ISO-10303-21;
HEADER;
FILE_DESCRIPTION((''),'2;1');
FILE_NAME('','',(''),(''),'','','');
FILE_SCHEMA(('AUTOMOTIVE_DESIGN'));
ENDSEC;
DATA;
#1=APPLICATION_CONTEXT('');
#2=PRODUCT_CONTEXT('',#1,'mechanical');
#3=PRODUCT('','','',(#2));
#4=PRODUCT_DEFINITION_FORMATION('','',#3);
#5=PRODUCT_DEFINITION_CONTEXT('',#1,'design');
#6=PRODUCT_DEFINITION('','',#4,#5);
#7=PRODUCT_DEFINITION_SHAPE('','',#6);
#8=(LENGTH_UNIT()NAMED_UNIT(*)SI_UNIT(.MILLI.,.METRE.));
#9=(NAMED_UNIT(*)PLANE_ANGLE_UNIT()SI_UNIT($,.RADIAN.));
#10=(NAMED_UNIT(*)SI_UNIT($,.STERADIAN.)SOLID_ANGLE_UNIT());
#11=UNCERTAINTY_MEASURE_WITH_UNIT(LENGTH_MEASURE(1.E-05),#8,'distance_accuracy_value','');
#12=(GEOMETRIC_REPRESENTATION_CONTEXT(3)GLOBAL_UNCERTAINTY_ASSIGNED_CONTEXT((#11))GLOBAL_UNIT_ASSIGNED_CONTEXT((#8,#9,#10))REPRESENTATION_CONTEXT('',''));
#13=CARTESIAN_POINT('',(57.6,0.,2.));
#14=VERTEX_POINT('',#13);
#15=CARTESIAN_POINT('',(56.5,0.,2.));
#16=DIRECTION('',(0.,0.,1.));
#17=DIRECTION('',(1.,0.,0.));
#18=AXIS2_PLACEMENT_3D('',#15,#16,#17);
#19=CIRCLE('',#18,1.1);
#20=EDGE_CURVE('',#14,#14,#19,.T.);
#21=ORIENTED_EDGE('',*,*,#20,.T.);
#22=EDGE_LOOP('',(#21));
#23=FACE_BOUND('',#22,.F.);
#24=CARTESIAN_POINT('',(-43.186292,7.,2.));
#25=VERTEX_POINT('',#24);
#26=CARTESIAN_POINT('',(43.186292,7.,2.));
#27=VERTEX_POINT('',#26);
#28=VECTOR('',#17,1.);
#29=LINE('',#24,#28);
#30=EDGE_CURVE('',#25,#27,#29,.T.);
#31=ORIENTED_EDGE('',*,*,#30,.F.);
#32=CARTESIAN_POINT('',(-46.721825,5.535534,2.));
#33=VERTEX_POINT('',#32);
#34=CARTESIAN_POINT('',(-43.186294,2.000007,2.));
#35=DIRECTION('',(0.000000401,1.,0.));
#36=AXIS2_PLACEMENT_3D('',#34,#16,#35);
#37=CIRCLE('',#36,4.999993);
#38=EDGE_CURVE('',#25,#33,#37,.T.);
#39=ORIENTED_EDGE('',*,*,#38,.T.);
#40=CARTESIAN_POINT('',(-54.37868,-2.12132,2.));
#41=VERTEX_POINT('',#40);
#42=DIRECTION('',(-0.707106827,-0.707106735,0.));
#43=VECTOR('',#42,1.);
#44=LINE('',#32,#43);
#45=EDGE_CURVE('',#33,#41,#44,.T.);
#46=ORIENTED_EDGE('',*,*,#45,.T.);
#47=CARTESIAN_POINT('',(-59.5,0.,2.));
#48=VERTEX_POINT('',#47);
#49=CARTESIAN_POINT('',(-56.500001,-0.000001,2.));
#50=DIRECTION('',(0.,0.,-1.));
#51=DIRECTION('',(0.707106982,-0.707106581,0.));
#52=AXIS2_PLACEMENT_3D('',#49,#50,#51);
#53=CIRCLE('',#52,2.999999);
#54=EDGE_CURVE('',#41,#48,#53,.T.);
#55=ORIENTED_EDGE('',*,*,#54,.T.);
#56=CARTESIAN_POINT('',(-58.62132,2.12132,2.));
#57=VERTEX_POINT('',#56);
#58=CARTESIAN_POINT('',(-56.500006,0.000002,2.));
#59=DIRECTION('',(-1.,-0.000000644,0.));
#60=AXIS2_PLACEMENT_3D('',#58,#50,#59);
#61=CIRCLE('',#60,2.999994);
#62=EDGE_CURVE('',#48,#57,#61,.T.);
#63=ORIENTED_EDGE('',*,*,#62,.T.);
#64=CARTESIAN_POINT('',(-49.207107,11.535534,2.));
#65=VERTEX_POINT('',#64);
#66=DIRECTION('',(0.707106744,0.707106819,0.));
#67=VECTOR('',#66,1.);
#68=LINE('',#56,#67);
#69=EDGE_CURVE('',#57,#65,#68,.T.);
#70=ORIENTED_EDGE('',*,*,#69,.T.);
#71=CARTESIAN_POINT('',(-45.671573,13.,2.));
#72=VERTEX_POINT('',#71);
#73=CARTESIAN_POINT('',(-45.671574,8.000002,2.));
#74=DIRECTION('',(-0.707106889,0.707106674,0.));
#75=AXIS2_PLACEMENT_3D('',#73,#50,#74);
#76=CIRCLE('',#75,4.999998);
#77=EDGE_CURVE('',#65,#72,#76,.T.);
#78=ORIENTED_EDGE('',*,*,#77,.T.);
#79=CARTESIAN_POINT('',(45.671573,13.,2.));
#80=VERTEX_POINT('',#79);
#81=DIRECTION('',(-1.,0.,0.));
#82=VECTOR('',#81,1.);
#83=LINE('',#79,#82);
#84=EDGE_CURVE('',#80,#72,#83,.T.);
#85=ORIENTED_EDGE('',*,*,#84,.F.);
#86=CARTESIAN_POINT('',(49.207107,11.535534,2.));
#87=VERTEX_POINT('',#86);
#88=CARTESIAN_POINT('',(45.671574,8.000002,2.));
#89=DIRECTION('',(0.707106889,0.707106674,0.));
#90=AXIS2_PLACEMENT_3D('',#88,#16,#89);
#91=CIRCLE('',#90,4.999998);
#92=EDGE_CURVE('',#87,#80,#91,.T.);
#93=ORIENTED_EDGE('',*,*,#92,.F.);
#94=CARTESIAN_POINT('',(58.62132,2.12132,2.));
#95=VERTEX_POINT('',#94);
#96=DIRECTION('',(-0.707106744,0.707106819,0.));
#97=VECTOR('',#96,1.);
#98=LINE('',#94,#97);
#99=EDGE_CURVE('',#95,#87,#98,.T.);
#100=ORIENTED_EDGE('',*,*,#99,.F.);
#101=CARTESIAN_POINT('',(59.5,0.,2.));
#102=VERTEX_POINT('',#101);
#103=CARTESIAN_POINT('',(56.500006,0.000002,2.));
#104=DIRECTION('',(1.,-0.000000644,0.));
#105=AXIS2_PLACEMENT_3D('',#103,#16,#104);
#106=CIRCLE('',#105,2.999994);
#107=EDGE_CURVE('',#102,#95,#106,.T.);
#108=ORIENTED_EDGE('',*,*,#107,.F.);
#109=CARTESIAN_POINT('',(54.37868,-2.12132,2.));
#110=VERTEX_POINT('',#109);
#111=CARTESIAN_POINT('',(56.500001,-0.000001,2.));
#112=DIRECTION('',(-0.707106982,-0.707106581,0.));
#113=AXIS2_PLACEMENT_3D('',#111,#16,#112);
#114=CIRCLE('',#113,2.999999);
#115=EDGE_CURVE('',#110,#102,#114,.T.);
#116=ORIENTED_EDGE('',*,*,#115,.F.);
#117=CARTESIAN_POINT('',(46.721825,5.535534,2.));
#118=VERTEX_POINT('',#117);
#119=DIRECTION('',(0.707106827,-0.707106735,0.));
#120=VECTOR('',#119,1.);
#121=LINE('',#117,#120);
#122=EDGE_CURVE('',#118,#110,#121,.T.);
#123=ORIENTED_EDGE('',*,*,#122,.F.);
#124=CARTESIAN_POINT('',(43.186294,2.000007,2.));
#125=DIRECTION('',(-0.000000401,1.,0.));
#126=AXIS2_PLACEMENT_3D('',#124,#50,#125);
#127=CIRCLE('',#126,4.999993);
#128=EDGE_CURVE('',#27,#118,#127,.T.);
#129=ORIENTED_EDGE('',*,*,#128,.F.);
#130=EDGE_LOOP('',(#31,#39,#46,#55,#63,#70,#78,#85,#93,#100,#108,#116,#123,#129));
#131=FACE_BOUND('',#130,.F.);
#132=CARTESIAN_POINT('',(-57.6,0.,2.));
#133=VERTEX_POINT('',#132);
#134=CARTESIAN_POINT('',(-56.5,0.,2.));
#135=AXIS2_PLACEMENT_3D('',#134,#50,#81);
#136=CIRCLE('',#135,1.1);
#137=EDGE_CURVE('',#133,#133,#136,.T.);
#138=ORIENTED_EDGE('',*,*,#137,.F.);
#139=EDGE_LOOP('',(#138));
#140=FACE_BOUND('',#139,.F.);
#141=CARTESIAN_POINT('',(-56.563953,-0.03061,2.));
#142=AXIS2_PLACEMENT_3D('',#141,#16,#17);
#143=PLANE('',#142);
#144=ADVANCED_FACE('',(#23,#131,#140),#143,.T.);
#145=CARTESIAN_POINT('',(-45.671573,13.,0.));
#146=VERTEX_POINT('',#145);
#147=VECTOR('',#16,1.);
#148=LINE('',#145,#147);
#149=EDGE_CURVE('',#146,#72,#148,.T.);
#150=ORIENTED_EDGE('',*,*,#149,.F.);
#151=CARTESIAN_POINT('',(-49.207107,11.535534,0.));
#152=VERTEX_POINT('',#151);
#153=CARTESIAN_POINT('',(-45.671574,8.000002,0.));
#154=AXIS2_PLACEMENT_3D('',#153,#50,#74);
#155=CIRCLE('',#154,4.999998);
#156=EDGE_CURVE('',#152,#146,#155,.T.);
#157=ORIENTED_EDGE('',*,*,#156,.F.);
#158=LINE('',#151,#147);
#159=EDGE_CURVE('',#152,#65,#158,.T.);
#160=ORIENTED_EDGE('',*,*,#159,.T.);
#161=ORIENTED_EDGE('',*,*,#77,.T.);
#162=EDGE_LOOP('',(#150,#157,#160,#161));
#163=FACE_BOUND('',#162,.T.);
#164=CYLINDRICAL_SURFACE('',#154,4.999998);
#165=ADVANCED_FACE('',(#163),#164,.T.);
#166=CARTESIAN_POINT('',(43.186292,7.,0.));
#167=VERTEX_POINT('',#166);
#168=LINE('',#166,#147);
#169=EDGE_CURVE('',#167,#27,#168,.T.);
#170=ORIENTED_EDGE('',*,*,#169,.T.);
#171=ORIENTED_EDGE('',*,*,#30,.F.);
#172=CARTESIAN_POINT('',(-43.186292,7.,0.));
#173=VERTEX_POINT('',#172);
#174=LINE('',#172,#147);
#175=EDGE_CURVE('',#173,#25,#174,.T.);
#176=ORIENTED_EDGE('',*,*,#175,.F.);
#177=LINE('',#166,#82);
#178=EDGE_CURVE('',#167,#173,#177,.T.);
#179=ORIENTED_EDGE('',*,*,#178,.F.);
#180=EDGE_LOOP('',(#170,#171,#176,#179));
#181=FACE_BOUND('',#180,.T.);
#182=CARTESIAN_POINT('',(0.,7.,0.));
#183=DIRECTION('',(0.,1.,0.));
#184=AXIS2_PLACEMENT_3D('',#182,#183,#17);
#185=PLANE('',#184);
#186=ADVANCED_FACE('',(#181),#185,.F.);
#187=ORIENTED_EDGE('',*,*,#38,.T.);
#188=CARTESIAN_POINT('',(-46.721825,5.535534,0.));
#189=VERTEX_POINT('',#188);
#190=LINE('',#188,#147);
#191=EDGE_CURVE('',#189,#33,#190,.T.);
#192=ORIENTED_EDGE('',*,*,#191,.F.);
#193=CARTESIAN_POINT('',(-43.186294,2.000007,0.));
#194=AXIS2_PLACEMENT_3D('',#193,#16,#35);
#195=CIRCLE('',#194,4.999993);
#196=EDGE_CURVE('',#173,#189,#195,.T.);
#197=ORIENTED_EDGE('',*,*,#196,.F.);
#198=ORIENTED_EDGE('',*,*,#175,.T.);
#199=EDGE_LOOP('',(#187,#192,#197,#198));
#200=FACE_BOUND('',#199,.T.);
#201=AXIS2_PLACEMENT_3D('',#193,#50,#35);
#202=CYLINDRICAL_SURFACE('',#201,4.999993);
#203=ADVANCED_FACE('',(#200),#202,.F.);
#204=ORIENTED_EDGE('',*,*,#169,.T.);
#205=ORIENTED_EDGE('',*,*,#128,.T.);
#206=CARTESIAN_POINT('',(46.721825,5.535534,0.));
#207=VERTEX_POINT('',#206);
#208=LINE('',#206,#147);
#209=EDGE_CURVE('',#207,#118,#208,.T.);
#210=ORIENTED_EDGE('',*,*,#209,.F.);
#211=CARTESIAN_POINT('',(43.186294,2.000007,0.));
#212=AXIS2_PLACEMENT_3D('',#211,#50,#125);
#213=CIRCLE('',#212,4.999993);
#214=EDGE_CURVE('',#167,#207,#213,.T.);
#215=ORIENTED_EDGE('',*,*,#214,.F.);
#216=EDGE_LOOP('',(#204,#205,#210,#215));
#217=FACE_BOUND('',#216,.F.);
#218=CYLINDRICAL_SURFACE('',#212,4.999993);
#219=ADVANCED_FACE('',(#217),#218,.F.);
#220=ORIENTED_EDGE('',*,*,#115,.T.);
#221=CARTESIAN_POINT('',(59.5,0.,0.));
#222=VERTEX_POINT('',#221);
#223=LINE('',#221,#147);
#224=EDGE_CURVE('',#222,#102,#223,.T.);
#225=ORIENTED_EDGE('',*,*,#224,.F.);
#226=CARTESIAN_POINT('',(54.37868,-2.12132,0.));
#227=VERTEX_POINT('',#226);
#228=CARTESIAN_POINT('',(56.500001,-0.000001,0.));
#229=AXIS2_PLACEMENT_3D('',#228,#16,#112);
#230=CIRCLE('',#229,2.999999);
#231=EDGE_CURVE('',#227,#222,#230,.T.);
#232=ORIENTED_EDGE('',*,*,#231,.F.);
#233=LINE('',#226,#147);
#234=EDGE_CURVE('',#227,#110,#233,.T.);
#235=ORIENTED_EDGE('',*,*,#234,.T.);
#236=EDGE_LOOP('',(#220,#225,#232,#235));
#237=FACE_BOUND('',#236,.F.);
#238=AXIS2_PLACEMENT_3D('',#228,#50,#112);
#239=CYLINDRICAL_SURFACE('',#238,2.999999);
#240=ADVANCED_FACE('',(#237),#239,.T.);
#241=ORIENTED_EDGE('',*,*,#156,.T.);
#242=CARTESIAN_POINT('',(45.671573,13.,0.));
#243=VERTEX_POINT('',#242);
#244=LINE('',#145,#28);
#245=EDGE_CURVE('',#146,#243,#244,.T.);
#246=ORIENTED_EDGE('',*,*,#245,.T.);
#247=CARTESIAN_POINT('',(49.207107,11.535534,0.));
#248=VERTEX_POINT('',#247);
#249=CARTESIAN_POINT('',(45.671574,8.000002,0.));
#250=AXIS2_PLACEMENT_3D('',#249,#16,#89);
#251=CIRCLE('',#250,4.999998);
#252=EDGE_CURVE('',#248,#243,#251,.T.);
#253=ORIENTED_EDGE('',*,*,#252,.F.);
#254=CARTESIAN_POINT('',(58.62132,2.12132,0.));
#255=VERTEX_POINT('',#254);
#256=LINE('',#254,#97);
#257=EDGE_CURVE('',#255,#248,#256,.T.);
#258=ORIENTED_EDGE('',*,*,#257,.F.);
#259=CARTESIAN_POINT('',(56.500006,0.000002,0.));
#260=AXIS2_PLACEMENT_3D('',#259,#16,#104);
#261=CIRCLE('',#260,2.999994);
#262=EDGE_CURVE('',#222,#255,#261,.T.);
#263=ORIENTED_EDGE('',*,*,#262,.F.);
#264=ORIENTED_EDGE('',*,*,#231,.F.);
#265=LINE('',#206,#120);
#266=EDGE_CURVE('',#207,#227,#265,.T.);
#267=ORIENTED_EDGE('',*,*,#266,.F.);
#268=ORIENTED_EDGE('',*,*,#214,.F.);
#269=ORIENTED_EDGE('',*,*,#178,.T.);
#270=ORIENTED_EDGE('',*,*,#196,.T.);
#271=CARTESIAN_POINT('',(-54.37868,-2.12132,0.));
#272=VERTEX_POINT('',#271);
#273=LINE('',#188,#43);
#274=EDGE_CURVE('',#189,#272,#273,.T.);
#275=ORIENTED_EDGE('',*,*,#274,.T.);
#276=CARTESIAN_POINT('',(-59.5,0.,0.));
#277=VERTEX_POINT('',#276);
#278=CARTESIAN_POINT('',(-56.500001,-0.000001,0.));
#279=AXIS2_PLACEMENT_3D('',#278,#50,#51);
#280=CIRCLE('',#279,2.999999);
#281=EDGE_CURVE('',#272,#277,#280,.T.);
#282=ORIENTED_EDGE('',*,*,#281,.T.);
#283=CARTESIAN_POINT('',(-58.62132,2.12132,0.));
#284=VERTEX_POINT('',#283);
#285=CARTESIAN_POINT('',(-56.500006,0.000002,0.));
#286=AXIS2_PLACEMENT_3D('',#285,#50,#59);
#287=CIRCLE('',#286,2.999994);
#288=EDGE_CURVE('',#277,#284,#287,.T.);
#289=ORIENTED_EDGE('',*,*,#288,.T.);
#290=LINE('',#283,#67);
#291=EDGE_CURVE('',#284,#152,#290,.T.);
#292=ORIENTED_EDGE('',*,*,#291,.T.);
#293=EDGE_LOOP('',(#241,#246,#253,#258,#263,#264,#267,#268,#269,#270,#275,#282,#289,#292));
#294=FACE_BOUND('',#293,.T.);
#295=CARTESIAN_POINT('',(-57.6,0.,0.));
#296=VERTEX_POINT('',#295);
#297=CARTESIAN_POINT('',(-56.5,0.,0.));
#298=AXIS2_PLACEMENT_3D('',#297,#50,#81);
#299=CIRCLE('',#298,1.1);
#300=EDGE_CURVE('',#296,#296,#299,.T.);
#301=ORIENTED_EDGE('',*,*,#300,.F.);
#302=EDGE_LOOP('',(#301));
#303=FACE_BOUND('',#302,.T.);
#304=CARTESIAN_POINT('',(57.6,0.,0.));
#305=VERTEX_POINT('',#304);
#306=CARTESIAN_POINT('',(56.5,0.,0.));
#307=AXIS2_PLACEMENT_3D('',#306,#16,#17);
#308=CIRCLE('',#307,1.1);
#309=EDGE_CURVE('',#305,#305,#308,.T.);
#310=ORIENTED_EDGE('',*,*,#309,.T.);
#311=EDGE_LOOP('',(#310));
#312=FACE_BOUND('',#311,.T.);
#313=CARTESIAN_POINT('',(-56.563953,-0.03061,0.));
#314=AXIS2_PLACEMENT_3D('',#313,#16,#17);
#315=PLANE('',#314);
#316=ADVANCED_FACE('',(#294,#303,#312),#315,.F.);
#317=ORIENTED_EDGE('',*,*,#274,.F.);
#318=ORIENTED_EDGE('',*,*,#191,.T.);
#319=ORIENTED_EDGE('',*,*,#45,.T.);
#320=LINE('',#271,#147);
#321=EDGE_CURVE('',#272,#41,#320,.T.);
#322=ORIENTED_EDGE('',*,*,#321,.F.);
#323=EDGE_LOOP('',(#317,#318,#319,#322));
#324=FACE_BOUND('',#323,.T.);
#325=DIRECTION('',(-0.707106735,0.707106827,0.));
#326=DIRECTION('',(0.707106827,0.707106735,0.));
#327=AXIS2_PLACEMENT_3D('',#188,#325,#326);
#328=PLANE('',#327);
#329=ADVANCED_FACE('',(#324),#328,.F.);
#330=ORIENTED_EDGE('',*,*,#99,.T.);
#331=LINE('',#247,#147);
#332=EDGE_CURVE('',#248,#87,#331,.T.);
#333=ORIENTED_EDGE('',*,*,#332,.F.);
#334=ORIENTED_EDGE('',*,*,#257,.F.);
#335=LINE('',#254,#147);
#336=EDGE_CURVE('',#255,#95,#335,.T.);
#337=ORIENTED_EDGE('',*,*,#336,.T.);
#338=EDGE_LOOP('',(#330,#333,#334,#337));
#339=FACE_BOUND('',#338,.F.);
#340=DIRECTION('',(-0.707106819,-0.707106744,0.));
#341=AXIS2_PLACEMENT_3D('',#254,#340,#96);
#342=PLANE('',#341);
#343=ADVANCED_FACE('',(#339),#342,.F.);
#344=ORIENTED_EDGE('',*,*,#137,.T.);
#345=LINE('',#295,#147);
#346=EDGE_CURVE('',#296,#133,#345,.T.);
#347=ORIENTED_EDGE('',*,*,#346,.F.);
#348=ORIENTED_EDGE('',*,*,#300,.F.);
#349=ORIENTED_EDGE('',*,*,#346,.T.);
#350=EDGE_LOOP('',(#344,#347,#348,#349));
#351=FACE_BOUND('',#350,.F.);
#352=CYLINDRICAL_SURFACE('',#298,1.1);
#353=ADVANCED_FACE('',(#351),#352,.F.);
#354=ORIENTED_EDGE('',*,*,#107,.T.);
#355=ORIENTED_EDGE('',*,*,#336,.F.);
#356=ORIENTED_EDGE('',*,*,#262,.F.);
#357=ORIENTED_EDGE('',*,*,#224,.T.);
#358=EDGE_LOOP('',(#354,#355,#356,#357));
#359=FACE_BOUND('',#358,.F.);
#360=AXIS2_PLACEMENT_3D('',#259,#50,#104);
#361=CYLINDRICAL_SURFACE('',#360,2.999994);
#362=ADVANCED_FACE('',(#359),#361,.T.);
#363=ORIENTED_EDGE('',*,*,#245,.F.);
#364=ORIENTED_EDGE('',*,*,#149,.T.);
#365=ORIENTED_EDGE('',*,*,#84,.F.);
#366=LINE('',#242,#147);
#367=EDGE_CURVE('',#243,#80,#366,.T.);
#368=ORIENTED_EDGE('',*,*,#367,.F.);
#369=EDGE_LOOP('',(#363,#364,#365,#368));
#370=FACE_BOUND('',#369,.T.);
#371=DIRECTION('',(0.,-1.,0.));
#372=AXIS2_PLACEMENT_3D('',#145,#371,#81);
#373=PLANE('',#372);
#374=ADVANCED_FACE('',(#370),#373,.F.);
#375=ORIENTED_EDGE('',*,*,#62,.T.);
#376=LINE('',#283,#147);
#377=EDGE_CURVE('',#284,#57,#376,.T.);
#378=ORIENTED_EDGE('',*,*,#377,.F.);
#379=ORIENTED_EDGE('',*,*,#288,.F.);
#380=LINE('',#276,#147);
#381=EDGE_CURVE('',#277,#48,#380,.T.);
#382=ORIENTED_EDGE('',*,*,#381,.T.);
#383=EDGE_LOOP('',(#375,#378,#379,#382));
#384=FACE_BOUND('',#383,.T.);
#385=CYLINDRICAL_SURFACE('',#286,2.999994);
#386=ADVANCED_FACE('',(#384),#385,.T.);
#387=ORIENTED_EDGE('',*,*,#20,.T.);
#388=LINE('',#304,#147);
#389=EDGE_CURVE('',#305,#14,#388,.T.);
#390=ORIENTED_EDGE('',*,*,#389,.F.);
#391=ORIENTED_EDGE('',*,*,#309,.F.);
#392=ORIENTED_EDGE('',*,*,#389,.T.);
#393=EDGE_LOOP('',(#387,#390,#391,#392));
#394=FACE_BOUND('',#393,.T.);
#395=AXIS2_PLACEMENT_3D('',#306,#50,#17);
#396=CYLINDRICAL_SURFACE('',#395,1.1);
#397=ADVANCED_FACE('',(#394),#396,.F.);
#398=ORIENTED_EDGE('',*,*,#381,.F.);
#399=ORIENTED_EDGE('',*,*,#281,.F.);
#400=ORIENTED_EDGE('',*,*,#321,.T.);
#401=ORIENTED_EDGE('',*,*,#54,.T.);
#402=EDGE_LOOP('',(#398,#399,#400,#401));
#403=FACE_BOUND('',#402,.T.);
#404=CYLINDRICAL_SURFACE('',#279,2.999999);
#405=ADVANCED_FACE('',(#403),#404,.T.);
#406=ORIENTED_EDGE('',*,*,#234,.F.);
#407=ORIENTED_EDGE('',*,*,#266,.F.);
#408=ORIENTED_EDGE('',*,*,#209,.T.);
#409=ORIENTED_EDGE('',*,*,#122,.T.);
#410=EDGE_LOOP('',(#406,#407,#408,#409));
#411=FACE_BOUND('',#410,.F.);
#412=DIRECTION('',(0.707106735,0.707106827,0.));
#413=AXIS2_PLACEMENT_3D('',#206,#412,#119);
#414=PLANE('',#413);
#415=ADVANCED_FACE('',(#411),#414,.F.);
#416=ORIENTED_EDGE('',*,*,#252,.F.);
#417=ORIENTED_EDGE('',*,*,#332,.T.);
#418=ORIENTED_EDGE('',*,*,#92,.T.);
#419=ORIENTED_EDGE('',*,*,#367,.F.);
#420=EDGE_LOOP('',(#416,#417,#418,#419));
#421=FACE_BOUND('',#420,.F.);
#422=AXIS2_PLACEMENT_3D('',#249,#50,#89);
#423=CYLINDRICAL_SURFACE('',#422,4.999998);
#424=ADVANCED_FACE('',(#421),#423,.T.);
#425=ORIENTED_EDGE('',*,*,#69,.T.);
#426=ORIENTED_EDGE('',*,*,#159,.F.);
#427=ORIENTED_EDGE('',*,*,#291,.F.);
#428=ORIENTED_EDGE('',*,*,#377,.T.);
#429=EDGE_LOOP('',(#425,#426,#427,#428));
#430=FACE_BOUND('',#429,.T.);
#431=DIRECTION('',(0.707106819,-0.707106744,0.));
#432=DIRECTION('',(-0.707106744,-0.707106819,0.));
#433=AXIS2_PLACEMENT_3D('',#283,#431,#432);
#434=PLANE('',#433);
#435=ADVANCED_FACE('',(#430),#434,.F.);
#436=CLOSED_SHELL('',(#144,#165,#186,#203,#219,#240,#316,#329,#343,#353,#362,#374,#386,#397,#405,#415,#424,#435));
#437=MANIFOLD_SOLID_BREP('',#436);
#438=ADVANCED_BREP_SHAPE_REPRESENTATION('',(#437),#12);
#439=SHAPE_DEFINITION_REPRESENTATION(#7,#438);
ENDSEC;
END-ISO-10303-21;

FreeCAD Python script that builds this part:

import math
import FreeCAD as App
import Part
import Sketcher

V = App.Vector
Q = App.Units.Quantity

doc = App.newDocument("Part")
params = doc.addObject("Spreadsheet::Sheet", "Params")
for row, (alias, value) in enumerate([
    ("sketch1_radius", "2.999999 mm"),
    ("sketch1_diameter", "2.2 mm"),
    ("sketch1_height", "6 mm"),
    ("pad1_length", "2 mm"),
], start=1):
    params.set(f"A{row}", alias)
    params.set(f"B{row}", "=" + value)
    params.setAlias(f"B{row}", alias)

body = doc.addObject("PartDesign::Body", "Body")

# Sketch on XY plane
sketch1 = body.newObject("Sketcher::SketchObject", "Sketch")
sketch1.AttachmentSupport = (doc.getObject("XY_Plane"), [""])
sketch1.MapMode = "FlatFace"
sketch1.addGeometry([
    Part.ArcOfCircle(Part.Circle(V(56.5, 0, 0), V(0, 0, 1), 3), math.radians(-135), math.radians(0)),  # 0
    Part.ArcOfCircle(Part.Circle(V(56.5, 0, 0), V(0, 0, 1), 3), math.radians(0), math.radians(45)),  # 1
    Part.LineSegment(V(58.6, 2.1, 0), V(49.2, 11.5, 0)),  # 2
    Part.ArcOfCircle(Part.Circle(V(45.7, 8, 0), V(0, 0, 1), 5), math.radians(45), math.radians(90)),  # 3
    Part.LineSegment(V(45.7, 13, 0), V(0, 13, 0)),  # 4
    Part.LineSegment(V(0, 13, 0), V(0, 7, 0)),  # 5
    Part.LineSegment(V(0, 7, 0), V(43.2, 7, 0)),  # 6
    Part.ArcOfCircle(Part.Circle(V(43.2, 2, 0), V(0, 0, 1), 5), math.radians(45), math.radians(90)),  # 7
    Part.LineSegment(V(46.7, 5.5, 0), V(54.4, -2.1, 0)),  # 8
    Part.Circle(V(56.5, 0, 0), V(0, 0, 1), 1.1),  # 9
], False)
sketch1.addConstraint([
    Sketcher.Constraint("Tangent", 0, 2, 1, 1),
    Sketcher.Constraint("Tangent", 1, 2, 2, 1),
    Sketcher.Constraint("Tangent", 2, 2, 3, 1),
    Sketcher.Constraint("Tangent", 3, 2, 4, 1),
    Sketcher.Constraint("Coincident", 4, 2, 5, 1),
    Sketcher.Constraint("Coincident", 5, 2, 6, 1),
    Sketcher.Constraint("Tangent", 6, 2, 7, 2),
    Sketcher.Constraint("Tangent", 7, 1, 8, 1),
    Sketcher.Constraint("Tangent", 8, 2, 0, 1),
    Sketcher.Constraint("Horizontal", 4),
    Sketcher.Constraint("Vertical", 5),
    Sketcher.Constraint("Horizontal", 6),
    Sketcher.Constraint("Coincident", 9, 3, 0, 3),
    Sketcher.Constraint("PointOnObject", 0, 3, -1),
    Sketcher.Constraint("PointOnObject", 0, 2, -1),
    Sketcher.Constraint("PointOnObject", 4, 2, -2),
    Sketcher.Constraint("Parallel", 2, 8),
    Sketcher.Constraint("Radius", 0, 2.999999),
    Sketcher.Constraint("Diameter", 9, 2.2),
    Sketcher.Constraint("DistanceY", 5, 2, 5, 1, 6.0),
    Sketcher.Constraint("Angle", 2, Q("134.999997 deg")),
    Sketcher.Constraint("DistanceY", -1, 1, 3, 2, 13.0),
    Sketcher.Constraint("DistanceY", 1, 3, 3, 3, 8.0),
    Sketcher.Constraint("DistanceY", 7, 1, 2, 2, 6.0),
    Sketcher.Constraint("DistanceX", -1, 1, 0, 3, 56.500001),
    Sketcher.Constraint("Radius", 1, 2.999994),
])
sketch1.setExpression("Constraints[17]", "Params.sketch1_radius")
sketch1.setExpression("Constraints[18]", "Params.sketch1_diameter")
sketch1.setExpression("Constraints[19]", "Params.sketch1_height")
pad1 = body.newObject("PartDesign::Pad", "Pad")
pad1.Profile = sketch1
pad1.setExpression("Length", "Params.pad1_length")
body2 = doc.addObject("PartDesign::Body", "Body001")
doc.recompute()

body2.BaseFeature = body
doc.recompute()

mirroring = doc.addObject("Part::Mirroring", "Mirroring")
mirroring.Source = body
mirroring.Base = V(0, 10, 1)
mirroring.Normal = V(-1, 0, 0)
body3 = doc.addObject("PartDesign::Body", "Body002")
body3.BaseFeature = mirroring
boolean = body2.newObject("PartDesign::Boolean", "Boolean")
boolean.Type = "Fuse"
boolean.addObjects([body3])
doc.recompute()
mirroring.Visibility = False

doc.recompute()
